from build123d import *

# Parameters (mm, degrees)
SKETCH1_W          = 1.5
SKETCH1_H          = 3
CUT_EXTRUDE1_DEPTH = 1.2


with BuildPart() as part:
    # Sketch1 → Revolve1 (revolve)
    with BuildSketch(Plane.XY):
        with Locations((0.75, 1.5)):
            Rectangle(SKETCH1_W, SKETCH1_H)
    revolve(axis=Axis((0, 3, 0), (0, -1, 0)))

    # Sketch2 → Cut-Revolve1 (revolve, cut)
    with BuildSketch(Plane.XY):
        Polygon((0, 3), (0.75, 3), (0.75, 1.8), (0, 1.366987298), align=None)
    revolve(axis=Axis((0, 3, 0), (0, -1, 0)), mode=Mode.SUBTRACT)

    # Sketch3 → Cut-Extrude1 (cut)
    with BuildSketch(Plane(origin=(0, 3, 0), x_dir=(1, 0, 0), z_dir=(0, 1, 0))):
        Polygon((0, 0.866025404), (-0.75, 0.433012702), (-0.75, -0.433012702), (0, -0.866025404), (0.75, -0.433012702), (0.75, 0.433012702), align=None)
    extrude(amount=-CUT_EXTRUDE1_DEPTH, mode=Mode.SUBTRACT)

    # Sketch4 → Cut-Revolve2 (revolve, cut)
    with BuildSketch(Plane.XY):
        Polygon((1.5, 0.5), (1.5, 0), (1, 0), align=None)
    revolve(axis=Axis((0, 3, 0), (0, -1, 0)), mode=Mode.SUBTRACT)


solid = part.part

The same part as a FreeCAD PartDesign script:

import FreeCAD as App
import Part
import Sketcher

V = App.Vector
Q = App.Units.Quantity


def add_polygon(sketch, points):
    """Adds a closed chain of lines whose ends are joined by coincident constraints."""
    first, n = sketch.GeometryCount, len(points)
    for a, b in zip(points, points[1:] + points[:1]):
        sketch.addGeometry(Part.LineSegment(App.Vector(*a, 0), App.Vector(*b, 0)), False)
    for i in range(n):
        sketch.addConstraint(Sketcher.Constraint("Coincident", first + i, 2, first + (i + 1) % n, 1))

doc = App.newDocument("Part")
body = doc.addObject("PartDesign::Body", "Body")

# Sketch on XY plane
sketch1 = body.newObject("Sketcher::SketchObject", "Sketch")
sketch1.AttachmentSupport = (doc.getObject("XY_Plane"), [""])
sketch1.MapMode = "FlatFace"
add_polygon(sketch1, [(0, 3), (0, 0), (1.5, 0), (1.5, 3)])  # lines 0-3
sketch1.addConstraint([
    Sketcher.Constraint("Vertical", 0),
    Sketcher.Constraint("Horizontal", 1),
    Sketcher.Constraint("Vertical", 2),
    Sketcher.Constraint("Horizontal", 3),
    Sketcher.Constraint("Coincident", 0, 2, -1, 1),
    Sketcher.Constraint("DistanceY", 0, 2, 0, 1, 3.0),
    Sketcher.Constraint("DistanceX", 1, 1, 1, 2, 1.5),
])
revolution = body.newObject("PartDesign::Revolution", "Revolution")
revolution.Profile = sketch1
revolution.ReferenceAxis = (sketch1, ["V_Axis"])
revolution.Angle = 360

# Sketch on XY plane
sketch2 = body.newObject("Sketcher::SketchObject", "Sketch001")
sketch2.AttachmentSupport = (doc.getObject("XY_Plane"), [""])
sketch2.MapMode = "FlatFace"
add_polygon(sketch2, [(0.8, 3), (0, 3), (0, 1.4), (0.8, 1.8)])  # lines 0-3
sketch2.addConstraint([
    Sketcher.Constraint("Horizontal", 0),
    Sketcher.Constraint("Vertical", 1),
    Sketcher.Constraint("Vertical", 3),
    Sketcher.Constraint("PointOnObject", 0, 2, -2),
    Sketcher.Constraint("Angle", 2, Q("30 deg")),
    Sketcher.Constraint("DistanceY", 3, 1, 3, 2, 1.2),
    Sketcher.Constraint("DistanceY", -1, 1, 0, 2, 3.0),
    Sketcher.Constraint("DistanceX", 0, 2, 0, 1, 0.75),
])
groove = body.newObject("PartDesign::Groove", "Groove")
groove.Profile = sketch2
groove.ReferenceAxis = (sketch2, ["V_Axis"])
groove.Angle = 360

# Sketch on XZ plane
sketch3 = body.newObject("Sketcher::SketchObject", "Sketch002")
sketch3.AttachmentSupport = (doc.getObject("XZ_Plane"), [""])
sketch3.MapMode = "FlatFace"
sketch3.AttachmentOffset = App.Placement(V(0, 0, -3), App.Rotation())
add_polygon(sketch3, [(0, -0.9), (-0.8, -0.4), (-0.8, 0.4), (0, 0.9), (0.8, 0.4), (0.8, -0.4)])  # lines 0-5
sketch3.addConstraint([
    Sketcher.Constraint("Vertical", 1),
    Sketcher.Constraint("Vertical", 4),
    Sketcher.Constraint("Symmetric", 0, 2, 3, 2, -1, 1),
    Sketcher.Constraint("Symmetric", 2, 2, 5, 2, -1, 1),
    Sketcher.Constraint("PointOnObject", 2, 2, -2),
    Sketcher.Constraint("Parallel", 2, 5),
    Sketcher.Constraint("Horizontal", 1, 2, 3, 2),
    Sketcher.Constraint("Angle", 0, Q("150 deg")),
    Sketcher.Constraint("DistanceX", 1, 2, 3, 2, 1.5),
    Sketcher.Constraint("DistanceY", 1, 1, 1, 2, 0.866025),
])
pocket1 = body.newObject("PartDesign::Pocket", "Pocket")
pocket1.Profile = sketch3
pocket1.Length = 1.2
pocket1.Reversed = True

# Sketch on XY plane
sketch4 = body.newObject("Sketcher::SketchObject", "Sketch003")
sketch4.AttachmentSupport = (doc.getObject("XY_Plane"), [""])
sketch4.MapMode = "FlatFace"
add_polygon(sketch4, [(1.5, 0), (1.5, 0.5), (1, 0)])  # lines 0-2
sketch4.addConstraint([
    Sketcher.Constraint("Vertical", 0),
    Sketcher.Constraint("Horizontal", 2),
    Sketcher.Constraint("PointOnObject", 1, 2, -1),
    Sketcher.Constraint("Equal", 2, 0),
    Sketcher.Constraint("DistanceX", 2, 1, 2, 2, 0.5),
    Sketcher.Constraint("DistanceX", -1, 1, 1, 2, 1.0),
])
groove2 = body.newObject("PartDesign::Groove", "Groove001")
groove2.Profile = sketch4
groove2.ReferenceAxis = (sketch4, ["V_Axis"])
groove2.Angle = 360

doc.recompute()
